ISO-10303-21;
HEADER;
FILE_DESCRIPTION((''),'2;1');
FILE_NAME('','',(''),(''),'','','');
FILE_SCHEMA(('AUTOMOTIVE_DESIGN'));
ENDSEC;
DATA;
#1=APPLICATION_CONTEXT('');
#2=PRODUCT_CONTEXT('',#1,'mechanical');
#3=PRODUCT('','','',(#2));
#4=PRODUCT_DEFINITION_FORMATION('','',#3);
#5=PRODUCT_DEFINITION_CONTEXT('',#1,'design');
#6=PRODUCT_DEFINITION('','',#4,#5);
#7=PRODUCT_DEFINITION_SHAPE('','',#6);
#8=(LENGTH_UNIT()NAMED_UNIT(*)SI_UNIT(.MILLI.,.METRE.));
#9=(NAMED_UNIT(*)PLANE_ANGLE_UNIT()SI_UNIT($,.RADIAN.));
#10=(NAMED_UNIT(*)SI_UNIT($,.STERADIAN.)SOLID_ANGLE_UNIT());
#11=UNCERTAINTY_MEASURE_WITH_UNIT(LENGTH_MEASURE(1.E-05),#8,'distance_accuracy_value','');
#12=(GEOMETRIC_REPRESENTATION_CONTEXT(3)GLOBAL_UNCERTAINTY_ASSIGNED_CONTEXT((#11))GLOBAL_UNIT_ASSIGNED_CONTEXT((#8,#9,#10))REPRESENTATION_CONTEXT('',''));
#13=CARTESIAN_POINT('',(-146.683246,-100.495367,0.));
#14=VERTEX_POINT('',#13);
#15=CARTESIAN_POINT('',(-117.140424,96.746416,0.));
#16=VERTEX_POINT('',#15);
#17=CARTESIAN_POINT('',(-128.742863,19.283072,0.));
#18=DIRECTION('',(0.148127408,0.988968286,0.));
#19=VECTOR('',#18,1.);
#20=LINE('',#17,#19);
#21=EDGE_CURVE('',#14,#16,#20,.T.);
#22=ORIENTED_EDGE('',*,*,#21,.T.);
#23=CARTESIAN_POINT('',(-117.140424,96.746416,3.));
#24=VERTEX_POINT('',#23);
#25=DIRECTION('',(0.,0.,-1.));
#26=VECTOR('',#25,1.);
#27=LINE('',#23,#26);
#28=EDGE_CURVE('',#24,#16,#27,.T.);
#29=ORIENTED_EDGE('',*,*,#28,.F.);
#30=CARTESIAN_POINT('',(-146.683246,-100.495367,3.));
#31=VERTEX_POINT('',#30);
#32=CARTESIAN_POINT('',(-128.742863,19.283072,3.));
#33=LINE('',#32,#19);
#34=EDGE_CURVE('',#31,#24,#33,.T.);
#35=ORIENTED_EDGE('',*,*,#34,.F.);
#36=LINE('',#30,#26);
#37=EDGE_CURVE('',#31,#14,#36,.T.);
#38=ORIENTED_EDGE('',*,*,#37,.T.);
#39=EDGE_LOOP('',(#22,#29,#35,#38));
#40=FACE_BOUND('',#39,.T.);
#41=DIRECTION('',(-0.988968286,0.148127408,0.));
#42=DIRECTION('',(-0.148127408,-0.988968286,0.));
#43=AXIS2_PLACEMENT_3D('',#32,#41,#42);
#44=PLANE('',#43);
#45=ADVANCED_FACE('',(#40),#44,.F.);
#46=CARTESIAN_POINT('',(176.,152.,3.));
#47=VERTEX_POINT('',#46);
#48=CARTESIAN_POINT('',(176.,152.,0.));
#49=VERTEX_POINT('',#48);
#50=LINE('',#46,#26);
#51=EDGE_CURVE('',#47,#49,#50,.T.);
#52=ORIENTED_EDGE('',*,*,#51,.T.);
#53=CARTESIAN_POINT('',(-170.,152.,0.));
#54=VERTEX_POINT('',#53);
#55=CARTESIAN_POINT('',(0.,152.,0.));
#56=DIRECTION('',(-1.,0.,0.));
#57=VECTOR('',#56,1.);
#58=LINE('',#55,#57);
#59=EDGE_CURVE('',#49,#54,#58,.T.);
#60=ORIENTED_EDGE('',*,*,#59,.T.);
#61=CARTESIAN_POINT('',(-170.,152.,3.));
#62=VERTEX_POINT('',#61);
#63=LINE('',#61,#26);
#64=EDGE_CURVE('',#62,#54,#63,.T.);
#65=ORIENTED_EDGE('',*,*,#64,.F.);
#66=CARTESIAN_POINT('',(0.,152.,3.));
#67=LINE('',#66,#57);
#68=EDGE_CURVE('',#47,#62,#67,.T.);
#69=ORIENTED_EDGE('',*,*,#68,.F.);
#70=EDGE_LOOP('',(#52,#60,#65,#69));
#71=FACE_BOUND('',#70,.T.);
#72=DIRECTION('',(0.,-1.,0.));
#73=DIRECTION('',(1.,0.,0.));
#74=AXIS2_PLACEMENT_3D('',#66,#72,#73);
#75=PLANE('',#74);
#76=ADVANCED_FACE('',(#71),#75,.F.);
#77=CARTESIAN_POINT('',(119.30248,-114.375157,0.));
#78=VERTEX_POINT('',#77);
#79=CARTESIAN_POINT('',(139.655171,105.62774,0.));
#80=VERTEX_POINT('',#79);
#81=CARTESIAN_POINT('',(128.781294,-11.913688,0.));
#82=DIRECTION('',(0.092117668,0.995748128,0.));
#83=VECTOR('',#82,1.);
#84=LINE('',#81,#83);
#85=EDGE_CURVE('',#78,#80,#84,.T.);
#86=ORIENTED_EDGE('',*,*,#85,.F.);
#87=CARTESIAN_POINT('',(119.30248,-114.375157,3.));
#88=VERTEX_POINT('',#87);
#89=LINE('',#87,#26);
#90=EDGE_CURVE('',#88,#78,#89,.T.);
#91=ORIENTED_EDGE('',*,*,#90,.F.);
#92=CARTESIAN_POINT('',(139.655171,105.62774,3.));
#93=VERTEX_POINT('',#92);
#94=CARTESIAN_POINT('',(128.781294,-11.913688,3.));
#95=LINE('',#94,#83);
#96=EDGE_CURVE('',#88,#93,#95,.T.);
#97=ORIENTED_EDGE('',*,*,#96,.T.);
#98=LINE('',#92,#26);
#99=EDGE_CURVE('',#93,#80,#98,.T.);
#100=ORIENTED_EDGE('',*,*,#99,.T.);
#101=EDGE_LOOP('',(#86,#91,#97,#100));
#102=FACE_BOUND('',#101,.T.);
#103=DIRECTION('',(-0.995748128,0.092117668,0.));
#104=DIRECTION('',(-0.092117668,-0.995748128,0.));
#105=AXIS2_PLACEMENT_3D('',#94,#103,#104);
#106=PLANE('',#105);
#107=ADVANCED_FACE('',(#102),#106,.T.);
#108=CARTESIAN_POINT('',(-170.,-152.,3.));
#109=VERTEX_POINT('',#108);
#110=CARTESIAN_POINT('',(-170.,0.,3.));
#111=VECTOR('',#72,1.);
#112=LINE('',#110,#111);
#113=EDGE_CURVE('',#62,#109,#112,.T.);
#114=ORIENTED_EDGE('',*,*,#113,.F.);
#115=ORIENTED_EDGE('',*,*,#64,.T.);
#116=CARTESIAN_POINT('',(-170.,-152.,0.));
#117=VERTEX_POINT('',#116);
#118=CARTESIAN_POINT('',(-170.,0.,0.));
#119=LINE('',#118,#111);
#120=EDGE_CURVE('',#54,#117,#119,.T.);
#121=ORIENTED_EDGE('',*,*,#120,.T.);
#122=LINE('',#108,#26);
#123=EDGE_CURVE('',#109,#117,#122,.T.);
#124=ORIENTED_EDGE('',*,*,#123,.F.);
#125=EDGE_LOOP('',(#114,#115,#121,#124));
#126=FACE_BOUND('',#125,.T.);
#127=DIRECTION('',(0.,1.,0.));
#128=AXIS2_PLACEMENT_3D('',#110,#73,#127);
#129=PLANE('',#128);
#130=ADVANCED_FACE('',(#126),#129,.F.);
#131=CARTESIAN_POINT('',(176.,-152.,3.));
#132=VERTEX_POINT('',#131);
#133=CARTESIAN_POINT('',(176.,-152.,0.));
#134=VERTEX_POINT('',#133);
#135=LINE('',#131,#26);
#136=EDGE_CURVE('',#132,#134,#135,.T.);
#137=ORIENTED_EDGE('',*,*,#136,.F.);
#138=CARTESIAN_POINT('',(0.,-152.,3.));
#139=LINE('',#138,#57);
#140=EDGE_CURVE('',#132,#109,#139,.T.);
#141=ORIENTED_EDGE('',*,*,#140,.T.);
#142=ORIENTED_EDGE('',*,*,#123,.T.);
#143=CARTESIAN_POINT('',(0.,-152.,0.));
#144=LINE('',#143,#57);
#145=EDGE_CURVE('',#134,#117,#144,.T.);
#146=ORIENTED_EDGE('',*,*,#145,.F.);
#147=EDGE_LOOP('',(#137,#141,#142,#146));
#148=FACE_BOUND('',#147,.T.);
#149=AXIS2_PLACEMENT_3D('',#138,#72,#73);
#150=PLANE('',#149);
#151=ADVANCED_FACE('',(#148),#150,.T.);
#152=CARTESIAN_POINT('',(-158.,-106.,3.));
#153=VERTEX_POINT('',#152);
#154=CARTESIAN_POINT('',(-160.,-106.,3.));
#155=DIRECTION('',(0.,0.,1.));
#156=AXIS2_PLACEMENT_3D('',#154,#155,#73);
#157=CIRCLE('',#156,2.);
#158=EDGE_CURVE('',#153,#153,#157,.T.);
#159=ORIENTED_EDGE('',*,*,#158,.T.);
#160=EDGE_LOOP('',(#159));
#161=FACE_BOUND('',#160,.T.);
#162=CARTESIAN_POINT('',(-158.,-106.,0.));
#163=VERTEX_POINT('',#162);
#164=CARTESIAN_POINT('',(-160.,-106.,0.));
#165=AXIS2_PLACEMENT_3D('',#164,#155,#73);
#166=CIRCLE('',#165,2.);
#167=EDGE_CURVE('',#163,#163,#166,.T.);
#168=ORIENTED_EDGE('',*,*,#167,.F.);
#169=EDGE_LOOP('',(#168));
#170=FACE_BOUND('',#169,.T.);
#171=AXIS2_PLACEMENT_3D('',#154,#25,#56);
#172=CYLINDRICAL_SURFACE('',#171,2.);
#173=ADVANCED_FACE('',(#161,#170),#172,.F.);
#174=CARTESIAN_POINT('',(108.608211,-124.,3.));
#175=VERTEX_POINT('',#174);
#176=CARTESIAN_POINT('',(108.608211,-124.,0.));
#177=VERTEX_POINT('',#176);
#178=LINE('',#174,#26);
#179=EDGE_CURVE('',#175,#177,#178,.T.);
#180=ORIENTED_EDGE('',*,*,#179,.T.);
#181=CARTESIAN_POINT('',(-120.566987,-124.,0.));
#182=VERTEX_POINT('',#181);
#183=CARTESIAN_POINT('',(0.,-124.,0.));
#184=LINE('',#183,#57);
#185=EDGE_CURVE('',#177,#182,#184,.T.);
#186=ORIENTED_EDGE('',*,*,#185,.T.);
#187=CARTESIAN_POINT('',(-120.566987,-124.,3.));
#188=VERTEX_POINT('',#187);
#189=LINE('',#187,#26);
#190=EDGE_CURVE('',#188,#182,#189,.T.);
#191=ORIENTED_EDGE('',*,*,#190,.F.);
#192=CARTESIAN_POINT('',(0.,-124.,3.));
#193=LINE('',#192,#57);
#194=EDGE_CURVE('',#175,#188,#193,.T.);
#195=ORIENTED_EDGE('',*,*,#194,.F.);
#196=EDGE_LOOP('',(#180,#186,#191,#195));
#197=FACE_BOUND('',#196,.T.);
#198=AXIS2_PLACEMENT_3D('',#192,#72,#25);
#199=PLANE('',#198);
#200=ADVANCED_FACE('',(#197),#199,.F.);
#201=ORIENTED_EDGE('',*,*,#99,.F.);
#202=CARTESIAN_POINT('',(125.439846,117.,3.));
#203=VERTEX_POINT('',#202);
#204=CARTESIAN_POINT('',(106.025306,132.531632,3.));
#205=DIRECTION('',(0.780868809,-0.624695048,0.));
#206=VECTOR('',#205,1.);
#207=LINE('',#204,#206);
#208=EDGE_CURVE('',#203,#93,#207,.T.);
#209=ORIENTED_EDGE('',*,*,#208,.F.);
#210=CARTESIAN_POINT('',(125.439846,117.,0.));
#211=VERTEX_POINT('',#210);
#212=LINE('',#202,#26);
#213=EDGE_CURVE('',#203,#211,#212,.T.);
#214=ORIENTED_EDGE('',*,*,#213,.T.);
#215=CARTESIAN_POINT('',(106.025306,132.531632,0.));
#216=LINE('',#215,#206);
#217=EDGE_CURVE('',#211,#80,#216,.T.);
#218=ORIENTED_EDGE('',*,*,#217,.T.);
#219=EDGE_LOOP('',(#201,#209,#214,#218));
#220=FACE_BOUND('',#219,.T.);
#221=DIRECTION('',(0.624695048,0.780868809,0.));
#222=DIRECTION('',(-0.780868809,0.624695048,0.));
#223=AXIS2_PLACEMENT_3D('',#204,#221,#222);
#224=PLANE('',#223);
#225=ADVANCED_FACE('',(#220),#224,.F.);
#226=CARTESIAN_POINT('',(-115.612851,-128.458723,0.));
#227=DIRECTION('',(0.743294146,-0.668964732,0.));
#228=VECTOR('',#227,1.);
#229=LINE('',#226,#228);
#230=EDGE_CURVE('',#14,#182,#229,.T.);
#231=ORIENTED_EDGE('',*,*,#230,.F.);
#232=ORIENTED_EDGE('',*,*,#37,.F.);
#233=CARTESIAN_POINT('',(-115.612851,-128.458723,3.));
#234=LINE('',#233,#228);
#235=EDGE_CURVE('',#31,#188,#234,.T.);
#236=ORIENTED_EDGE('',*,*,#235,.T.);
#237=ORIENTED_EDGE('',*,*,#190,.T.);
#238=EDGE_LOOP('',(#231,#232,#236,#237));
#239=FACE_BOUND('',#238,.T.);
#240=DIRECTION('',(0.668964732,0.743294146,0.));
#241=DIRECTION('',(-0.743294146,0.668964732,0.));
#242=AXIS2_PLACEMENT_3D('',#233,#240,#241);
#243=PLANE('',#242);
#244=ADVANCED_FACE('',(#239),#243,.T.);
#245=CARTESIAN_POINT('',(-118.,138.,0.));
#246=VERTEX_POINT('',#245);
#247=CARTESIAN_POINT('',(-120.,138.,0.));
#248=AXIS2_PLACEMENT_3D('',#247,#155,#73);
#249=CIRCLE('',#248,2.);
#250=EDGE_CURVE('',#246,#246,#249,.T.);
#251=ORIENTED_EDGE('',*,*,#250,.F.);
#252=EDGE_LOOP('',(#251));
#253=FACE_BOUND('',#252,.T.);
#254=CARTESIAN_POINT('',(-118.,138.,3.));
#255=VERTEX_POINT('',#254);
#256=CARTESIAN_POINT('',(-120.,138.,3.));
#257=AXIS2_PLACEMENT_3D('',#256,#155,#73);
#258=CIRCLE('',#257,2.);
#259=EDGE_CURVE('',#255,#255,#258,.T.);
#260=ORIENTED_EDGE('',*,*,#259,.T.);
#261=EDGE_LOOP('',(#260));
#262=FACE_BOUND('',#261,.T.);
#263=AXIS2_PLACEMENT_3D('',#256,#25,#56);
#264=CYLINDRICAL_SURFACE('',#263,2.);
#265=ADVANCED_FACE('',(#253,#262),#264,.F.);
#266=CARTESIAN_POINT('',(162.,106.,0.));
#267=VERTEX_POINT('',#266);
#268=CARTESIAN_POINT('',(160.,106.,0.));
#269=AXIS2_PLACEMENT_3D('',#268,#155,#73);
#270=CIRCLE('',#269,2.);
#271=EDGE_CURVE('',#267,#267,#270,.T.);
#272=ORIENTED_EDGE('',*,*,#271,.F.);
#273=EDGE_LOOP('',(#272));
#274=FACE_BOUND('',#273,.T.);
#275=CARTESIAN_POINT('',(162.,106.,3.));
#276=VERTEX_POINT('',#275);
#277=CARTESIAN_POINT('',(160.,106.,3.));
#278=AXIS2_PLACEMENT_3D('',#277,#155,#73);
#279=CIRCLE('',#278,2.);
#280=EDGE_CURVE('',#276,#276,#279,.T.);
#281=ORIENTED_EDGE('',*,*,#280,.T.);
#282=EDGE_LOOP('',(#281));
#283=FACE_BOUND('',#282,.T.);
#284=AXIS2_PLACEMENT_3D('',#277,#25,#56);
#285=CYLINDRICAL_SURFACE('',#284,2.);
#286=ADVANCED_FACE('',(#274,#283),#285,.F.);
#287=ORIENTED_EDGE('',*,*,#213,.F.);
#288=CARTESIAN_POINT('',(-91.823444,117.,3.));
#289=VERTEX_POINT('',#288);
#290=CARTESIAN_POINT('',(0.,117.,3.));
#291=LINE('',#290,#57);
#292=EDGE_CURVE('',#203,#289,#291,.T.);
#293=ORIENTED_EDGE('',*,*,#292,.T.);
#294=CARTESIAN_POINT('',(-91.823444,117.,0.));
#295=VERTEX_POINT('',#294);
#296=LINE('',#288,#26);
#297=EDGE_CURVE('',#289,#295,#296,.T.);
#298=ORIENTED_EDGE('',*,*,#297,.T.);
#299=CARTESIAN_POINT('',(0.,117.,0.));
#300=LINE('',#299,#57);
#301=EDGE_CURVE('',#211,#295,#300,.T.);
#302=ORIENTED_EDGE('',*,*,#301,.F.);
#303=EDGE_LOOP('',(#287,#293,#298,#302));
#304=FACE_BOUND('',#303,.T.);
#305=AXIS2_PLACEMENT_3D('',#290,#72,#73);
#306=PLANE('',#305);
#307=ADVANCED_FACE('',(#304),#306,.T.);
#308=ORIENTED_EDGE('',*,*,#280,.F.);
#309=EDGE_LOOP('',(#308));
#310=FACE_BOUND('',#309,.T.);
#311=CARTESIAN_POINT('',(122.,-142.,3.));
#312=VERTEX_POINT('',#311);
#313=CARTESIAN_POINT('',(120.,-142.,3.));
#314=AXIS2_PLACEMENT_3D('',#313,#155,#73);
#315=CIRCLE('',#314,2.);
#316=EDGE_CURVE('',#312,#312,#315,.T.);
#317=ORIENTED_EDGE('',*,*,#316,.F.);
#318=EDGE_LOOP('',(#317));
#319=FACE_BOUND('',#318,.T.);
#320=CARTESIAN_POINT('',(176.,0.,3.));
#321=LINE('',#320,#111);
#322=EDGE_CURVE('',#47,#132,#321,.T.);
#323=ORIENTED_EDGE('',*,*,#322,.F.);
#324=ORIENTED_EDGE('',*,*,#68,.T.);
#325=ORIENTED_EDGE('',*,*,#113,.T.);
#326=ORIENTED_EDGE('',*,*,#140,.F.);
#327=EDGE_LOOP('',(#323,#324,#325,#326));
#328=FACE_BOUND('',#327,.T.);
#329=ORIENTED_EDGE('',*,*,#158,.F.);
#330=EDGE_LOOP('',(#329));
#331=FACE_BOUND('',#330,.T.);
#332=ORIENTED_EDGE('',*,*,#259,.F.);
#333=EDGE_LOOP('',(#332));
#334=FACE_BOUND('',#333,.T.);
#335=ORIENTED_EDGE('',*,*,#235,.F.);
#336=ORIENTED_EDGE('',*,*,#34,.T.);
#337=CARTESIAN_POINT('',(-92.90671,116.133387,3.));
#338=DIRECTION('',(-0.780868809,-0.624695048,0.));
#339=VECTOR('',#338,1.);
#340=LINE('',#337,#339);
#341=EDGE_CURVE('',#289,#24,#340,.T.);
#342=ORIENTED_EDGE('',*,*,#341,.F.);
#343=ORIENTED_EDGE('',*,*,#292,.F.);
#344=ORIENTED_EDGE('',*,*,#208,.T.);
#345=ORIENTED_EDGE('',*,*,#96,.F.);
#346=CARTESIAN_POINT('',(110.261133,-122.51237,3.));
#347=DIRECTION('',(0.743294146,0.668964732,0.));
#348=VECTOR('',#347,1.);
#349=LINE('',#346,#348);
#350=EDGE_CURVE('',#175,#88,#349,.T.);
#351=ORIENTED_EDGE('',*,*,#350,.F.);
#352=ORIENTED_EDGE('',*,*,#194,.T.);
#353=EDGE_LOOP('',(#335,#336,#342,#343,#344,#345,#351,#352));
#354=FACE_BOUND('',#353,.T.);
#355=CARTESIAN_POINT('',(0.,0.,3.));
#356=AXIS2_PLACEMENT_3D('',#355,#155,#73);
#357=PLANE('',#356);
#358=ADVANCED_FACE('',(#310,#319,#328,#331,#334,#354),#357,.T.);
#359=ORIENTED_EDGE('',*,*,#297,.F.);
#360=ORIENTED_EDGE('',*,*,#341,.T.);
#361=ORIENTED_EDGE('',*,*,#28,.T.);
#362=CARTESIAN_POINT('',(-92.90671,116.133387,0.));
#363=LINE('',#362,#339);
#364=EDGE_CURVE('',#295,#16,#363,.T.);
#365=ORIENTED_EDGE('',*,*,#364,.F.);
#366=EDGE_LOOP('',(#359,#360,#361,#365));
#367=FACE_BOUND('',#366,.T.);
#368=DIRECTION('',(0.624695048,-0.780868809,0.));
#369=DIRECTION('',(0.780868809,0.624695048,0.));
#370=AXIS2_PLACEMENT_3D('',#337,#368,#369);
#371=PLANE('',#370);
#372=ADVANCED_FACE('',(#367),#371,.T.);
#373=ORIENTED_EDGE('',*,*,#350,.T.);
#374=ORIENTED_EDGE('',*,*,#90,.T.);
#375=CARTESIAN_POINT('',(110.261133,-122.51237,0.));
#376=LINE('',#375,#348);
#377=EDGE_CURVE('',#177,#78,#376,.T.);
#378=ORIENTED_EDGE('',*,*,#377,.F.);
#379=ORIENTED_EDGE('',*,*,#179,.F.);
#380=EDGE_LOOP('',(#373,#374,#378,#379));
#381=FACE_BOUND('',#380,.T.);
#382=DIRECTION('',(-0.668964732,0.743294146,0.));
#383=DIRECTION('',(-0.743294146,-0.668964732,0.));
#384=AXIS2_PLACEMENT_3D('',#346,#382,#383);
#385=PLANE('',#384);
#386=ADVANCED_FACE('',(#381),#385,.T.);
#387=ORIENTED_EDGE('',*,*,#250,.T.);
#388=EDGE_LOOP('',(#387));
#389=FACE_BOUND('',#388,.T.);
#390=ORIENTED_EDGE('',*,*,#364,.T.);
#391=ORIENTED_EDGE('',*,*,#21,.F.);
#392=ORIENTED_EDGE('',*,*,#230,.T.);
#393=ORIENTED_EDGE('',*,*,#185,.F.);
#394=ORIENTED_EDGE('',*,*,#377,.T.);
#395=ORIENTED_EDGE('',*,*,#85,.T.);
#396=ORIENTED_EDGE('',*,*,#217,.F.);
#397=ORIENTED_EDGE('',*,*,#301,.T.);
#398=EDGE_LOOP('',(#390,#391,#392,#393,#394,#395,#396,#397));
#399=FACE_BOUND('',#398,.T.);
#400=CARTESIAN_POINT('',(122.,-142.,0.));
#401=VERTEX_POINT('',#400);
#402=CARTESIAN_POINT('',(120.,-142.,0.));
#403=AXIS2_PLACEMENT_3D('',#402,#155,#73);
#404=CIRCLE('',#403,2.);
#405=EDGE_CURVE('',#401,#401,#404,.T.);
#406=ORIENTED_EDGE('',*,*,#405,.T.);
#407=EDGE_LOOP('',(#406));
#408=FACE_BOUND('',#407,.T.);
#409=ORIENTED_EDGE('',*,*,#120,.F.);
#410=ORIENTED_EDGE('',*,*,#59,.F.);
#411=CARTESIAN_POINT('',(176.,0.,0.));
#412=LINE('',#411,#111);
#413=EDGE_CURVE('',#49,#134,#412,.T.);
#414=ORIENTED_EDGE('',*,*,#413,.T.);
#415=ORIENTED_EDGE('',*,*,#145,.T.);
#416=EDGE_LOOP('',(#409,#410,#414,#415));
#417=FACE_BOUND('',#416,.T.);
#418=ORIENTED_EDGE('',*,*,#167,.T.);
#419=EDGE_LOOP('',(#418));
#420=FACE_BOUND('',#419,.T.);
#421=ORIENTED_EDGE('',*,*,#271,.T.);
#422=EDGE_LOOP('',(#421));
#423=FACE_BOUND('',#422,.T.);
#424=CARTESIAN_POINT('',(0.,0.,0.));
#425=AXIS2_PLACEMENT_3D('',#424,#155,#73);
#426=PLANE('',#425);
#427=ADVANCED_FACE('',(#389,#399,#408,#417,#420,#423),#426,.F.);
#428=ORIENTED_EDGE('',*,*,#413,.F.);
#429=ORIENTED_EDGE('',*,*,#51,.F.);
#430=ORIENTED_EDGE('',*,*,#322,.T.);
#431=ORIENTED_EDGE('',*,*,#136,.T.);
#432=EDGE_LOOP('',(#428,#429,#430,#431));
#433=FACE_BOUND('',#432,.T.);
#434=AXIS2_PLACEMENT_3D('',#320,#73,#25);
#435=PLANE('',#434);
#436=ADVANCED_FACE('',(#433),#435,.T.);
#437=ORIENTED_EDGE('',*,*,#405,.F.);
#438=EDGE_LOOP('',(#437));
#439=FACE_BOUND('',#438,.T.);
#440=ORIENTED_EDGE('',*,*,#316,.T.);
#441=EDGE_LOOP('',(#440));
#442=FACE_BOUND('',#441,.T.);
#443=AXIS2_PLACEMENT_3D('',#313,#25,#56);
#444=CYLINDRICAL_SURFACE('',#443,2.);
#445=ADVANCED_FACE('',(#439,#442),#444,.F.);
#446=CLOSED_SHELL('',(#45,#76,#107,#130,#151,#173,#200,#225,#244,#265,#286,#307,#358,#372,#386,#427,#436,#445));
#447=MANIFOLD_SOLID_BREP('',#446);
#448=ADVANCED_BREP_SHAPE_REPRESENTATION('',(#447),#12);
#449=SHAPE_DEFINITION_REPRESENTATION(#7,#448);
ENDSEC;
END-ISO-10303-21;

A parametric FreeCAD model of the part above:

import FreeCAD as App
import Part
import Sketcher

V = App.Vector
Q = App.Units.Quantity


def add_polygon(sketch, points):
    """Adds a closed chain of lines whose ends are joined by coincident constraints."""
    first, n = sketch.GeometryCount, len(points)
    for a, b in zip(points, points[1:] + points[:1]):
        sketch.addGeometry(Part.LineSegment(App.Vector(*a, 0), App.Vector(*b, 0)), False)
    for i in range(n):
        sketch.addConstraint(Sketcher.Constraint("Coincident", first + i, 2, first + (i + 1) % n, 1))

doc = App.newDocument("Part")
params = doc.addObject("Spreadsheet::Sheet", "Params")
for row, (alias, value) in enumerate([
    ("sketch1_diameter", "4 mm"),
    ("sketch1_width", "346 mm"),
    ("sketch1_height", "304 mm"),
    ("pad1_length", "3 mm"),
], start=1):
    params.set(f"A{row}", alias)
    params.set(f"B{row}", "=" + value)
    params.setAlias(f"B{row}", alias)

body = doc.addObject("PartDesign::Body", "Body")

sketch1 = body.newObject("Sketcher::SketchObject", "Sketch")
sketch1.AttachmentSupport = (doc.getObject("XY_Plane"), [""])
sketch1.MapMode = "FlatFace"
add_polygon(sketch1, [(-170, 152), (-170, -152), (176, -152), (176, 152)])
sketch1.addGeometry(Part.Circle(V(-160, -106, 0), V(0, 0, 1), 2), False)
add_polygon(sketch1, [(119.3, -114.4), (108.6, -124), (-120.6, -124), (-146.7, -100.5), (-117.1, 96.7), (-91.8, 117), (125.4, 117), (139.7, 105.6)])
sketch1.addGeometry(Part.Circle(V(120, -142, 0), V(0, 0, 1), 2), False)
sketch1.addGeometry(Part.Circle(V(-120, 138, 0), V(0, 0, 1), 2), False)
sketch1.addGeometry(Part.Circle(V(160, 106, 0), V(0, 0, 1), 2), False)
sketch1.addConstraint([
    Sketcher.Constraint("Vertical", 0),
    Sketcher.Constraint("Horizontal", 1),
    Sketcher.Constraint("Vertical", 2),
    Sketcher.Constraint("Horizontal", 3),
    Sketcher.Constraint("Horizontal", 6),
    Sketcher.Constraint("Horizontal", 10),
    Sketcher.Constraint("Equal", 4, 13),
    Sketcher.Constraint("Equal", 13, 14),
    Sketcher.Constraint("Equal", 14, 15),
    Sketcher.Constraint("Symmetric", 4, 3, 15, 3, -1, 1),
    Sketcher.Constraint("Diameter", 4, Q("4 mm")),
    Sketcher.Constraint("DistanceX", 1, 1, 1, 2, Q("346 mm")),
    Sketcher.Constraint("DistanceY", 0, 2, 0, 1, Q("304 mm")),
    Sketcher.Constraint("DistanceX", 4, 3, -1, 1, Q("160 mm")),
    Sketcher.Constraint("DistanceY", 4, 3, -1, 1, Q("106 mm")),
    Sketcher.Constraint("DistanceX", -1, 1, 13, 3, Q("120 mm")),
    Sketcher.Constraint("DistanceY", 13, 3, -1, 1, Q("142 mm")),
    Sketcher.Constraint("DistanceX", 14, 3, -1, 1, Q("120 mm")),
    Sketcher.Constraint("DistanceY", -1, 1, 14, 3, Q("138 mm")),
    Sketcher.Constraint("DistanceX", 0, 2, -1, 1, Q("170 mm")),
    Sketcher.Constraint("DistanceY", 0, 2, -1, 1, Q("152 mm")),
    Sketcher.Constraint("DistanceY", 5, 2, -1, 1, Q("124 mm")),
    Sketcher.Constraint("DistanceY", -1, 1, 9, 2, Q("117 mm")),
    Sketcher.Constraint("DistanceX", 6, 2, 6, 1, Q("229.175198 mm")),
    Sketcher.Constraint("Distance", 11, Q("18.204498 mm")),
    Sketcher.Constraint("DistanceX", 10, 1, 10, 2, Q("217.26329 mm")),
    Sketcher.Constraint("DistanceX", 7, 2, 9, 2, Q("54.859802 mm")),
    Sketcher.Constraint("Distance", 5, Q("14.387668 mm")),
    Sketcher.Constraint("Distance", 8, Q("199.44197 mm")),
    Sketcher.Constraint("DistanceX", -1, 1, 5, 2, Q("108.608211 mm")),
    Sketcher.Constraint("DistanceX", -1, 1, 11, 2, Q("139.655171 mm")),
    Sketcher.Constraint("DistanceY", -1, 1, 11, 2, Q("105.62774 mm")),
    Sketcher.Constraint("DistanceX", -1, 1, 12, 2, Q("119.30248 mm")),
    Sketcher.Constraint("DistanceX", 8, 2, 9, 2, Q("25.31698 mm")),
    Sketcher.Constraint("Distance", 7, Q("35.135832 mm")),
])
sketch1.setExpression("Constraints[22]", "Params.sketch1_diameter")
sketch1.setExpression("Constraints[23]", "Params.sketch1_width")
sketch1.setExpression("Constraints[24]", "Params.sketch1_height")
pad1 = body.newObject("PartDesign::Pad", "Pad")
pad1.Profile = sketch1
pad1.setExpression("Length", "Params.pad1_length")

doc.recompute()
